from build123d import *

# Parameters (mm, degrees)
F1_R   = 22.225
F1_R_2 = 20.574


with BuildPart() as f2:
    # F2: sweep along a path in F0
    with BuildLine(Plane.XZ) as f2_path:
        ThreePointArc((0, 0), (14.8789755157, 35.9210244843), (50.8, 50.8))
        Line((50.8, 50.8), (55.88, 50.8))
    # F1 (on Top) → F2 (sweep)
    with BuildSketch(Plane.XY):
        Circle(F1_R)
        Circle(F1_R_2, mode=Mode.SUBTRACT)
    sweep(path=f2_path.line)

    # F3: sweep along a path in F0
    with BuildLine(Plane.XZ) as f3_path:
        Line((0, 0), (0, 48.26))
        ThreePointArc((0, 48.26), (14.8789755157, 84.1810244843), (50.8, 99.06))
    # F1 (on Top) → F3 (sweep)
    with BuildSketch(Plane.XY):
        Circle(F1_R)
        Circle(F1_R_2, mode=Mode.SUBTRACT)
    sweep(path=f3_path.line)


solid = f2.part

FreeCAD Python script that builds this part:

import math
import FreeCAD as App
import Part
import Sketcher

V = App.Vector
Q = App.Units.Quantity

doc = App.newDocument("Part")
body = doc.addObject("PartDesign::Body", "Body")

# Sketch on XY plane
sketch1 = doc.addObject("Sketcher::SketchObject", "Sketch")
body.addObject(sketch1)
sketch1.AttachmentSupport = (doc.XY_Plane, [""])
sketch1.MapMode = "FlatFace"
sketch1.addGeometry(Part.Circle(V(0, 0, 0), V(0, 0, 1), 22), False)
sketch1.addGeometry(Part.Circle(V(0, 0, 0), V(0, 0, 1), 21), False)
sketch1.addConstraint(Sketcher.Constraint("Coincident", 0, 3, -1, 1))
sketch1.addConstraint(Sketcher.Constraint("Coincident", 1, 3, -1, 1))
sketch1.addConstraint(Sketcher.Constraint("Diameter", 0, Q("1.75 in")))
sketch1.addConstraint(Sketcher.Constraint("Diameter", 1, Q("1.62 in")))

# Sketch on XZ plane
sketch2 = doc.addObject("Sketcher::SketchObject", "Sketch001")
body.addObject(sketch2)
sketch2.AttachmentSupport = (doc.XZ_Plane, [""])
sketch2.MapMode = "FlatFace"
sketch2.addGeometry(Part.ArcOfCircle(Part.Circle(V(51, 0, 0), V(0, 0, 1), 51), math.radians(90), math.radians(180)), False)
sketch2.addGeometry(Part.LineSegment(V(51, 51, 0), V(56, 51, 0)), False)
sketch2.addConstraint(Sketcher.Constraint("Tangent", 0, 1, 1, 1))
sketch2.addConstraint(Sketcher.Constraint("Horizontal", 1))
sketch2.addConstraint(Sketcher.Constraint("Coincident", 0, 2, -1, 1))
sketch2.addConstraint(Sketcher.Constraint("PointOnObject", 0, 3, -1))
sketch2.addConstraint(Sketcher.Constraint("Radius", 0, Q("2 in")))
sketch2.addConstraint(Sketcher.Constraint("DistanceX", 1, 1, 1, 2, Q("0.2 in")))
doc.recompute()

additivepipe = doc.addObject("PartDesign::AdditivePipe", "AdditivePipe")
body.addObject(additivepipe)
additivepipe.Profile = sketch1
additivepipe.Spine = (sketch2, ["Edge1", "Edge2"])

# Sketch on XY plane
sketch3 = doc.addObject("Sketcher::SketchObject", "Sketch002")
body.addObject(sketch3)
sketch3.AttachmentSupport = (doc.XY_Plane, [""])
sketch3.MapMode = "FlatFace"
sketch3.addGeometry(Part.Circle(V(0, 0, 0), V(0, 0, 1), 22), False)
sketch3.addGeometry(Part.Circle(V(0, 0, 0), V(0, 0, 1), 21), False)
sketch3.addConstraint(Sketcher.Constraint("Coincident", 0, 3, -1, 1))
sketch3.addConstraint(Sketcher.Constraint("Coincident", 1, 3, -1, 1))
sketch3.addConstraint(Sketcher.Constraint("Diameter", 0, Q("1.75 in")))
sketch3.addConstraint(Sketcher.Constraint("Diameter", 1, Q("1.62 in")))

# Sketch on XZ plane
sketch4 = doc.addObject("Sketcher::SketchObject", "Sketch003")
body.addObject(sketch4)
sketch4.AttachmentSupport = (doc.XZ_Plane, [""])
sketch4.MapMode = "FlatFace"
sketch4.addGeometry(Part.LineSegment(V(0, 0, 0), V(0, 48, 0)), False)
sketch4.addGeometry(Part.ArcOfCircle(Part.Circle(V(51, 48, 0), V(0, 0, 1), 51), math.radians(90), math.radians(180)), False)
sketch4.addConstraint(Sketcher.Constraint("Tangent", 0, 2, 1, 2))
sketch4.addConstraint(Sketcher.Constraint("Vertical", 0))
sketch4.addConstraint(Sketcher.Constraint("Coincident", 0, 1, -1, 1))
sketch4.addConstraint(Sketcher.Constraint("Radius", 1, Q("2 in")))
sketch4.addConstraint(Sketcher.Constraint("DistanceY", 0, 1, 0, 2, Q("1.9 in")))
sketch4.addConstraint(Sketcher.Constraint("DistanceX", -1, 1, 1, 1, Q("2 in")))
doc.recompute()

additivepipe2 = doc.addObject("PartDesign::AdditivePipe", "AdditivePipe001")
body.addObject(additivepipe2)
additivepipe2.Profile = sketch3
additivepipe2.Spine = (sketch4, ["Edge1", "Edge2"])

doc.recompute()
